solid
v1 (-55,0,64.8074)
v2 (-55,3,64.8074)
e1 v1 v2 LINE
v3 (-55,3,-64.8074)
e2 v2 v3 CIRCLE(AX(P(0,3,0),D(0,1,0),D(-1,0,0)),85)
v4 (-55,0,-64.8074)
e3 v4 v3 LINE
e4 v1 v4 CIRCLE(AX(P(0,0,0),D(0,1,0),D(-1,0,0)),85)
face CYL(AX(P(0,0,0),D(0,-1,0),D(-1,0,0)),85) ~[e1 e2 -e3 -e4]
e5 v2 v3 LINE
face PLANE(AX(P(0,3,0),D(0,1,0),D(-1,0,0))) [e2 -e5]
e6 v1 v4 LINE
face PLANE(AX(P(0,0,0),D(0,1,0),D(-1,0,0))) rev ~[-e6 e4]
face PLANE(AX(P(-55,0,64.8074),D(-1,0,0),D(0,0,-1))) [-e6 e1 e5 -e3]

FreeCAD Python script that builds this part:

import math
import FreeCAD as App
import Part
import Sketcher
Q = App.Units.Quantity

doc = App.newDocument("Part")
body = doc.addObject("PartDesign::Body", "Body")

# Sketch on XZ plane
sketch1 = body.newObject("Sketcher::SketchObject", "Sketch")
sketch1.AttachmentSupport = (doc.getObject("XZ_Plane"), [""])
sketch1.MapMode = "FlatFace"
sketch1.addGeometry([
    Part.LineSegment(App.Vector(-55, -65, 0), App.Vector(-55, 65, 0)),
    Part.ArcOfCircle(Part.Circle(App.Vector(0, 0, 0), App.Vector(0, 0, 1), 85), math.radians(-130), math.radians(130)),
], False)
sketch1.addConstraint([
    Sketcher.Constraint("Coincident", 0, 1, 1, 1),
    Sketcher.Constraint("Coincident", 1, 2, 0, 2),
    Sketcher.Constraint("Vertical", 0),
    Sketcher.Constraint("Coincident", 1, 3, -1, 1),
    Sketcher.Constraint("Radius", 1, Q("85 mm")),
    Sketcher.Constraint("DistanceX", 0, 1, -1, 1, Q("55 mm")),
])
pad1 = body.newObject("PartDesign::Pad", "Pad")
pad1.Profile = sketch1
pad1.Length = 3
pad1.Reversed = True

doc.recompute()
